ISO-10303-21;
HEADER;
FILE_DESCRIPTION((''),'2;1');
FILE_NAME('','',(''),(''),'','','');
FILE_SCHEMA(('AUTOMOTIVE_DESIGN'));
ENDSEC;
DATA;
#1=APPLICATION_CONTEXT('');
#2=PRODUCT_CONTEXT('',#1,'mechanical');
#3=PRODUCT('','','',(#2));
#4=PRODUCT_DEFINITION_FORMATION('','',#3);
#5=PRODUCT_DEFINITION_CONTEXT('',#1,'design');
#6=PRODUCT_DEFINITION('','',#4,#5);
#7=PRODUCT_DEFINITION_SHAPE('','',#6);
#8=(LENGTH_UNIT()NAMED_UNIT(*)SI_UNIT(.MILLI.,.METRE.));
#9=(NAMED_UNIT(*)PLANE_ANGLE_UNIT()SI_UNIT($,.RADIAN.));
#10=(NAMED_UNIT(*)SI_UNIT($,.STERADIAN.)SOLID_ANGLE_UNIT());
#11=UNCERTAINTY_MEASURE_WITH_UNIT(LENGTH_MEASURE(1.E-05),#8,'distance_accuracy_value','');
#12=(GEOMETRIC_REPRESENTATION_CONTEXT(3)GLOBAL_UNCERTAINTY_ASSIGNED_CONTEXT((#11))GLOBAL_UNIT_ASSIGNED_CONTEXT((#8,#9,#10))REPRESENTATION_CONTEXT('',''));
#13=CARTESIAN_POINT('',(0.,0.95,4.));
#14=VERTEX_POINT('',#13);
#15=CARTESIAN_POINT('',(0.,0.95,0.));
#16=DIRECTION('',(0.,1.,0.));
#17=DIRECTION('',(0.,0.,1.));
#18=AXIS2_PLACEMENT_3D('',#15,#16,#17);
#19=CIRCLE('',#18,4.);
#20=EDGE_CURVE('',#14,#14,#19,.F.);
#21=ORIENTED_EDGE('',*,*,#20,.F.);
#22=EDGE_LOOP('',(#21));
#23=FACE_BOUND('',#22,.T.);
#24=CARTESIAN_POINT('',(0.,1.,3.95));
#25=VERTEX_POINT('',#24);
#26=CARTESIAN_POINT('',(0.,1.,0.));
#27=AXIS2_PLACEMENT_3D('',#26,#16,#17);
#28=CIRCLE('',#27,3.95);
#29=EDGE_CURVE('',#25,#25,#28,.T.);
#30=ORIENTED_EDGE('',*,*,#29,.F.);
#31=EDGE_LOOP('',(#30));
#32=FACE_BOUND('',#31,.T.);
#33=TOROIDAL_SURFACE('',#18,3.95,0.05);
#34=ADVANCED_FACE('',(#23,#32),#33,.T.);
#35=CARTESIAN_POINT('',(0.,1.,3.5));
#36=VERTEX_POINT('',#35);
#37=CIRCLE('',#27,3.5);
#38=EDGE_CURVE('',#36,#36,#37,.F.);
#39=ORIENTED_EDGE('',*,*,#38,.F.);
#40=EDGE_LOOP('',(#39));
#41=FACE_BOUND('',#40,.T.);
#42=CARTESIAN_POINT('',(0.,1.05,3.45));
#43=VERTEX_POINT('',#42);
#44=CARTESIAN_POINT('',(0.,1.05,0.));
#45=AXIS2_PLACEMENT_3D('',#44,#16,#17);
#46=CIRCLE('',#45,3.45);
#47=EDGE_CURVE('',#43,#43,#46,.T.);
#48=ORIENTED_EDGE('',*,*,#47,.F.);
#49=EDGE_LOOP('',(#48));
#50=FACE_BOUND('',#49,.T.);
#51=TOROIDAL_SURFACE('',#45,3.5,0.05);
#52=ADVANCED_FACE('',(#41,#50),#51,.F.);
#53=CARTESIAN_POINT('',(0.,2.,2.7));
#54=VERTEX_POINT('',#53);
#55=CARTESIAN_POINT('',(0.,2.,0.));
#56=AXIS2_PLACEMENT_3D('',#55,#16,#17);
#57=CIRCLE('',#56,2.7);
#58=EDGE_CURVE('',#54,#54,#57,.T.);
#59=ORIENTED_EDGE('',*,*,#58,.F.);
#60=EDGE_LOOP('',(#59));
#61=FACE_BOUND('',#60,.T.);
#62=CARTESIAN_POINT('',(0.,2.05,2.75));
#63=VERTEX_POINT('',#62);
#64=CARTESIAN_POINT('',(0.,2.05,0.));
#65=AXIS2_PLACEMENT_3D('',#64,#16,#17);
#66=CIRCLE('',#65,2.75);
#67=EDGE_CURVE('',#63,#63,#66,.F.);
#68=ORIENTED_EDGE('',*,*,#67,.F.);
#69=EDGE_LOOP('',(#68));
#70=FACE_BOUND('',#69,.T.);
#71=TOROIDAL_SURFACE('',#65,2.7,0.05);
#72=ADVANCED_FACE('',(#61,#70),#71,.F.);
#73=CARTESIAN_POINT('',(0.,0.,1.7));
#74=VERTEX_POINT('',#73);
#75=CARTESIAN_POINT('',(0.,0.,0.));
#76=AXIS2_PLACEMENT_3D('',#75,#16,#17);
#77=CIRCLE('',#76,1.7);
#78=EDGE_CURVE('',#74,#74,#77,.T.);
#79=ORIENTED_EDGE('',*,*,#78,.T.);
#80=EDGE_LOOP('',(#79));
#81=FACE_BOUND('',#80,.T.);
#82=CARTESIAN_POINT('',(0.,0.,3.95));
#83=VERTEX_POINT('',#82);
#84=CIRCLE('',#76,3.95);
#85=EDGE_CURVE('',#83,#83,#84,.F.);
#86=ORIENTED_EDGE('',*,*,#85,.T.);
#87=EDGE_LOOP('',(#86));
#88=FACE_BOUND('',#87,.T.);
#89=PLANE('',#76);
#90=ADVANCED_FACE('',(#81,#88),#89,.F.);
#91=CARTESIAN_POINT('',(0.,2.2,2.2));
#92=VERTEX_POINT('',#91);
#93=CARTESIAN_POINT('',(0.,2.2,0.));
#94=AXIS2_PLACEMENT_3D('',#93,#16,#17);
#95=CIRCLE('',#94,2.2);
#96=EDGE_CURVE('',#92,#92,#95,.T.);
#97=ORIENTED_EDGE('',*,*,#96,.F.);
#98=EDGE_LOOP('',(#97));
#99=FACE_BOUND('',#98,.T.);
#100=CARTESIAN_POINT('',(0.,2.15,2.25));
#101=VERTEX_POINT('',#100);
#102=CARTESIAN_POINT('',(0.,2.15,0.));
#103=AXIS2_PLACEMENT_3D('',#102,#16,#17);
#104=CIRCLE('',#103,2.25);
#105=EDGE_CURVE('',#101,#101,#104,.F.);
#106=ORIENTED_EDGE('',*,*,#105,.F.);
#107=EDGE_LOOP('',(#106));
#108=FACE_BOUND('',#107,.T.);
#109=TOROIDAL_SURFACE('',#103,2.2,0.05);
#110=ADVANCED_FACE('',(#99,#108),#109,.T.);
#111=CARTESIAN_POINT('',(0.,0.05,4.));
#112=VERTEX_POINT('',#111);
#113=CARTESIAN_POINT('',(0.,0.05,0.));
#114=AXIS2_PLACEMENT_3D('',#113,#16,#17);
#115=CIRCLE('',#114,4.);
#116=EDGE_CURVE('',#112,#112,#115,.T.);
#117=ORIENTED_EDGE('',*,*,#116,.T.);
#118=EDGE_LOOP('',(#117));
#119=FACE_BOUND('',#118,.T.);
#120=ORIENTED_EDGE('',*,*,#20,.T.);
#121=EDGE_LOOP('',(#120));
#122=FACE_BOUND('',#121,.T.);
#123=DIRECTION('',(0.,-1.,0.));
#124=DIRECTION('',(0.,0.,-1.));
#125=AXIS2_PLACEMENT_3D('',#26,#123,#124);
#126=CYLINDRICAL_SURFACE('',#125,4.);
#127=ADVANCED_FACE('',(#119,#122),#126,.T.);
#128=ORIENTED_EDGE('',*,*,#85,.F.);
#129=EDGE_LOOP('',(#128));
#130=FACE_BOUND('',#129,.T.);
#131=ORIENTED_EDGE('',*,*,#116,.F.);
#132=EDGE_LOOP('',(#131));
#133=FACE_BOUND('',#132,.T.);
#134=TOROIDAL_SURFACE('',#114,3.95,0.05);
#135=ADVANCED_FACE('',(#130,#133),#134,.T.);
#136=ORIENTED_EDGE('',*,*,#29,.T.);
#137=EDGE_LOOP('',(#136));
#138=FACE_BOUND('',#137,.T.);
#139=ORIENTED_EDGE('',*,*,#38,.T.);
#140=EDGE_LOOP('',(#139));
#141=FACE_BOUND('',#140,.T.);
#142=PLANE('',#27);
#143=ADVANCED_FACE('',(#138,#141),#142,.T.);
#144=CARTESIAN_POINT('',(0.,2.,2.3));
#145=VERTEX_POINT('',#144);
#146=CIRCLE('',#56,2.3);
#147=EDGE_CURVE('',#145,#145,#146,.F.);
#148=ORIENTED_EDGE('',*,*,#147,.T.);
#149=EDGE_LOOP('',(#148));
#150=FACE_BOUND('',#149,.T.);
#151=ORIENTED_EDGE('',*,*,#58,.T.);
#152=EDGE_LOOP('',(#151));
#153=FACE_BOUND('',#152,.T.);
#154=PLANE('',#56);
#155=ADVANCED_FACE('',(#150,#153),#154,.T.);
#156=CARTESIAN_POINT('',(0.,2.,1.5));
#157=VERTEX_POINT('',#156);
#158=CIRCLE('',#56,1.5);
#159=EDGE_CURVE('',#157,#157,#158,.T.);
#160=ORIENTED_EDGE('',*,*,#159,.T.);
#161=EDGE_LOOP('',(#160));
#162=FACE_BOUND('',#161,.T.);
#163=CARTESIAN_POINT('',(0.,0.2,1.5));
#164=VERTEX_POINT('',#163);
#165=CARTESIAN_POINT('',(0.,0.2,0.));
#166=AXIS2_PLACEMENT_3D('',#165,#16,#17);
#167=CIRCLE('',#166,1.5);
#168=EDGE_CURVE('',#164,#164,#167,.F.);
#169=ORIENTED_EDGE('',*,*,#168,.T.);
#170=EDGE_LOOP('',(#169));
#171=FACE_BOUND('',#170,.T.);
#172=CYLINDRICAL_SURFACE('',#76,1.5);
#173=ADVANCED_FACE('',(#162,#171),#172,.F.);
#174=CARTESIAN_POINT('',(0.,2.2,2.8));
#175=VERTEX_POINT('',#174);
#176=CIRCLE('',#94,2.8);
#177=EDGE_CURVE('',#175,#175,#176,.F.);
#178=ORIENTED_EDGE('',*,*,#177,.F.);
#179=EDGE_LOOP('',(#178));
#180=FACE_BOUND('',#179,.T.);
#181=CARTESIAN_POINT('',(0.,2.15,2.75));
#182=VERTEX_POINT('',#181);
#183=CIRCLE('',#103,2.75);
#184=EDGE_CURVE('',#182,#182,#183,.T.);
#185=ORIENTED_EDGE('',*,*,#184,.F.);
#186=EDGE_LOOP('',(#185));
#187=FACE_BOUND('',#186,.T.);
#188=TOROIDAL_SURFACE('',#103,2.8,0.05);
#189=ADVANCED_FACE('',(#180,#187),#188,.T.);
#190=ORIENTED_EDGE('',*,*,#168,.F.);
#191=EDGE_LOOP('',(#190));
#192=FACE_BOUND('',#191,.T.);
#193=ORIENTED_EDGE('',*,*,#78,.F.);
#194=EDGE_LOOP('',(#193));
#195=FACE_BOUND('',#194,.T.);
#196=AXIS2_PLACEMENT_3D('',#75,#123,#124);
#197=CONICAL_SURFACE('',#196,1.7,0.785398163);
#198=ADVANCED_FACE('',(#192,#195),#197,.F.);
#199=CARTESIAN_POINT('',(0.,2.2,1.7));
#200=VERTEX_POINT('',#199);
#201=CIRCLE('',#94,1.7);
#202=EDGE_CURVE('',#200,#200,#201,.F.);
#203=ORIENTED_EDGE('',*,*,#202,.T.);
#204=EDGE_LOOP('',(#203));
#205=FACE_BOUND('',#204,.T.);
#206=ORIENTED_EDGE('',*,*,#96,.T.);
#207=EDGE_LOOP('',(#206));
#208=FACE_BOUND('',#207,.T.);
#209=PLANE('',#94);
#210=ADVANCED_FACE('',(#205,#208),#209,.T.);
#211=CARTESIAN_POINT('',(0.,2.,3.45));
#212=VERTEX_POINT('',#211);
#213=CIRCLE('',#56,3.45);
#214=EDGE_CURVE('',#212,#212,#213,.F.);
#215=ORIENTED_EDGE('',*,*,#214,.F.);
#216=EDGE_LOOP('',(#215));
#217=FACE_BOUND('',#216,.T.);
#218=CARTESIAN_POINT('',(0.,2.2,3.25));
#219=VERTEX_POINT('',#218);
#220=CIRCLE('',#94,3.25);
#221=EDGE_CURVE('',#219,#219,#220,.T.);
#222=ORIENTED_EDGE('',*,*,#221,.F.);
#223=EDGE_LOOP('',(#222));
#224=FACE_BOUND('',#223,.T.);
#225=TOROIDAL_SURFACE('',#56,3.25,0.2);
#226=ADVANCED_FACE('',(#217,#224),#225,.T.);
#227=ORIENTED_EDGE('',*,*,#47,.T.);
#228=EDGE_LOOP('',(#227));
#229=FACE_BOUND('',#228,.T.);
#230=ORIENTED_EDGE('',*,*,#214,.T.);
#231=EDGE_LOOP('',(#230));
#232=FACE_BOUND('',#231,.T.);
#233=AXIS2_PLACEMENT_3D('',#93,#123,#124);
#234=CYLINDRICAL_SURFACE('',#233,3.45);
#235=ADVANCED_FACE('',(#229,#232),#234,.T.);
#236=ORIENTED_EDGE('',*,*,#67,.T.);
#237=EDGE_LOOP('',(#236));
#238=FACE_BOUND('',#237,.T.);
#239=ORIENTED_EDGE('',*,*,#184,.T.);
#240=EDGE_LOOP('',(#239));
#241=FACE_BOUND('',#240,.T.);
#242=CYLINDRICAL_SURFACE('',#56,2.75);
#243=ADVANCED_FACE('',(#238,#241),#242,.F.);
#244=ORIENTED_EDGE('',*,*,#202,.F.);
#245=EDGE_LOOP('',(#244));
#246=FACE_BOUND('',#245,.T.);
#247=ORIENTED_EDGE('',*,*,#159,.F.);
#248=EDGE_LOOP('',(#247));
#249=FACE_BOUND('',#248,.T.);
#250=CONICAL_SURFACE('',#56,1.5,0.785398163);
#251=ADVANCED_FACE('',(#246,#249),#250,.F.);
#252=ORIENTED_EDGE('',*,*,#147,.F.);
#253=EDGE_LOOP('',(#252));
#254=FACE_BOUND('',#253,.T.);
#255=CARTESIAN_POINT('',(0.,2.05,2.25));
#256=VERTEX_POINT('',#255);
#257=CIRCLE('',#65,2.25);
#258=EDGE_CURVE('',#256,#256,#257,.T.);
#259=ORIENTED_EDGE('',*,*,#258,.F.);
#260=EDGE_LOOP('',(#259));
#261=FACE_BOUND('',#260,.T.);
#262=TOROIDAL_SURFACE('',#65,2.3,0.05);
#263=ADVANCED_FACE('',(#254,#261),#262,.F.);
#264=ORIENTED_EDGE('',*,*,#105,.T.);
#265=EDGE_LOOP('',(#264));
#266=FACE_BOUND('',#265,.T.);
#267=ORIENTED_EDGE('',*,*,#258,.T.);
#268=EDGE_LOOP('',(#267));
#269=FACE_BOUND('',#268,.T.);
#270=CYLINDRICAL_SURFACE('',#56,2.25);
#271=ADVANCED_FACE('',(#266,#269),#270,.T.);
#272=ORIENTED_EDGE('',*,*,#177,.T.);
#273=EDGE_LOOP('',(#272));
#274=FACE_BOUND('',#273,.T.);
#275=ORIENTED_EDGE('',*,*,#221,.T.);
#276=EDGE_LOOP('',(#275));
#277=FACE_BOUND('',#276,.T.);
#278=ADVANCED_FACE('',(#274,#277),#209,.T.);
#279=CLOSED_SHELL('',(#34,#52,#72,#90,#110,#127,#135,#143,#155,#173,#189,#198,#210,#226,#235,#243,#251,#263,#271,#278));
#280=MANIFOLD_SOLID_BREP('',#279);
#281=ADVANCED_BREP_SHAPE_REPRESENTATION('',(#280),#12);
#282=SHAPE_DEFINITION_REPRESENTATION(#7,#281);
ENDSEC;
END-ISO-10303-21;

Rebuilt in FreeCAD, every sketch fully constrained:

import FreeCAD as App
import Part
import Sketcher
from FreeCAD import Vector


def edges_at(feature, points):
    """Names of the edges that pass closest to the given points."""
    edges = feature.Shape.Edges
    near = lambda p: min(range(len(edges)), key=lambda i: edges[i].distToShape(Part.Vertex(*p))[0])
    return sorted({f"Edge{near(p) + 1}" for p in points})

doc = App.newDocument("Part")
body = doc.addObject("PartDesign::Body", "Body")

# Sketch on XZ plane
sketch1 = body.newObject("Sketcher::SketchObject", "Sketch")
sketch1.AttachmentSupport = (doc.getObject("XZ_Plane"), [""])
sketch1.MapMode = "FlatFace"
sketch1.addGeometry(Part.Circle(Vector(0, 0, 0), Vector(0, 0, 1), 4), False)
sketch1.addConstraint([
    Sketcher.Constraint("Coincident", 0, 3, -1, 1),
    Sketcher.Constraint("Diameter", 0, 8.0),
])
pad1 = body.newObject("PartDesign::Pad", "Pad")
pad1.Profile = sketch1
pad1.Length = 1
pad1.Reversed = True

# Sketch on XZ plane
sketch2 = body.newObject("Sketcher::SketchObject", "Sketch001")
sketch2.AttachmentSupport = (doc.getObject("XZ_Plane"), [""])
sketch2.MapMode = "FlatFace"
sketch2.AttachmentOffset = App.Placement(Vector(0, 0, -1), App.Rotation())
sketch2.addGeometry(Part.Circle(Vector(0, 0, 0), Vector(0, 0, 1), 3.5), False)
sketch2.addConstraint([
    Sketcher.Constraint("Coincident", 0, 3, -1, 1),
    Sketcher.Constraint("Diameter", 0, 6.9),
])
pad2 = body.newObject("PartDesign::Pad", "Pad001")
pad2.Profile = sketch2
pad2.Length = 1.2
pad2.Reversed = True
doc.recompute()

fillet = body.newObject("PartDesign::Fillet", "Fillet")
fillet.Base = (pad2, edges_at(pad2, [(0, 2.2, -3.45)]))
fillet.Radius = 0.2

# Sketch on XZ plane
sketch3 = body.newObject("Sketcher::SketchObject", "Sketch002")
sketch3.AttachmentSupport = (doc.getObject("XZ_Plane"), [""])
sketch3.MapMode = "FlatFace"
sketch3.AttachmentOffset = App.Placement(Vector(0, 0, -2.2), App.Rotation())
sketch3.addGeometry(Part.Circle(Vector(0, 0, 0), Vector(0, 0, 1), 1.5), False)
sketch3.addConstraint([
    Sketcher.Constraint("Coincident", 0, 3, -1, 1),
    Sketcher.Constraint("Diameter", 0, 3.0),
])
pocket1 = body.newObject("PartDesign::Pocket", "Pocket")
pocket1.Profile = sketch3
pocket1.Type = "ThroughAll"
pocket1.Reversed = True
doc.recompute()

chamfer = body.newObject("PartDesign::Chamfer", "Chamfer")
chamfer.Base = (pocket1, edges_at(pocket1, [(0, 0, -1.5), (0, 2.2, -1.5)]))
chamfer.Size = 0.2

# Sketch on XZ plane
sketch4 = body.newObject("Sketcher::SketchObject", "Sketch003")
sketch4.AttachmentSupport = (doc.getObject("XZ_Plane"), [""])
sketch4.MapMode = "FlatFace"
sketch4.AttachmentOffset = App.Placement(Vector(0, 0, -2.2), App.Rotation())
sketch4.addGeometry([
    Part.Circle(Vector(0, 0, 0), Vector(0, 0, 1), 2.8),
    Part.Circle(Vector(0, 0, 0), Vector(0, 0, 1), 2.2),
], False)
sketch4.addConstraint([
    Sketcher.Constraint("Coincident", 0, 3, -1, 1),
    Sketcher.Constraint("Coincident", 1, 3, -1, 1),
    Sketcher.Constraint("Diameter", 0, 5.5),
    Sketcher.Constraint("Diameter", 1, 4.5),
])
pocket2 = body.newObject("PartDesign::Pocket", "Pocket001")
pocket2.Profile = sketch4
pocket2.Length = 0.2
pocket2.Reversed = True
doc.recompute()

fillet2 = body.newObject("PartDesign::Fillet", "Fillet001")
fillet2.Base = (pocket2, edges_at(pocket2, [
    (0, 2, -2.75),
    (0, 2, -2.25),
    (0, 2.2, -2.75),
    (0, 2.2, -2.25),
]))
fillet2.Radius = 0.05
doc.recompute()

fillet3 = body.newObject("PartDesign::Fillet", "Fillet002")
fillet3.Base = (fillet2, edges_at(fillet2, [(0, 0, -4), (0, 1, -4), (0, 1, -3.45)]))
fillet3.Radius = 0.05

doc.recompute()
